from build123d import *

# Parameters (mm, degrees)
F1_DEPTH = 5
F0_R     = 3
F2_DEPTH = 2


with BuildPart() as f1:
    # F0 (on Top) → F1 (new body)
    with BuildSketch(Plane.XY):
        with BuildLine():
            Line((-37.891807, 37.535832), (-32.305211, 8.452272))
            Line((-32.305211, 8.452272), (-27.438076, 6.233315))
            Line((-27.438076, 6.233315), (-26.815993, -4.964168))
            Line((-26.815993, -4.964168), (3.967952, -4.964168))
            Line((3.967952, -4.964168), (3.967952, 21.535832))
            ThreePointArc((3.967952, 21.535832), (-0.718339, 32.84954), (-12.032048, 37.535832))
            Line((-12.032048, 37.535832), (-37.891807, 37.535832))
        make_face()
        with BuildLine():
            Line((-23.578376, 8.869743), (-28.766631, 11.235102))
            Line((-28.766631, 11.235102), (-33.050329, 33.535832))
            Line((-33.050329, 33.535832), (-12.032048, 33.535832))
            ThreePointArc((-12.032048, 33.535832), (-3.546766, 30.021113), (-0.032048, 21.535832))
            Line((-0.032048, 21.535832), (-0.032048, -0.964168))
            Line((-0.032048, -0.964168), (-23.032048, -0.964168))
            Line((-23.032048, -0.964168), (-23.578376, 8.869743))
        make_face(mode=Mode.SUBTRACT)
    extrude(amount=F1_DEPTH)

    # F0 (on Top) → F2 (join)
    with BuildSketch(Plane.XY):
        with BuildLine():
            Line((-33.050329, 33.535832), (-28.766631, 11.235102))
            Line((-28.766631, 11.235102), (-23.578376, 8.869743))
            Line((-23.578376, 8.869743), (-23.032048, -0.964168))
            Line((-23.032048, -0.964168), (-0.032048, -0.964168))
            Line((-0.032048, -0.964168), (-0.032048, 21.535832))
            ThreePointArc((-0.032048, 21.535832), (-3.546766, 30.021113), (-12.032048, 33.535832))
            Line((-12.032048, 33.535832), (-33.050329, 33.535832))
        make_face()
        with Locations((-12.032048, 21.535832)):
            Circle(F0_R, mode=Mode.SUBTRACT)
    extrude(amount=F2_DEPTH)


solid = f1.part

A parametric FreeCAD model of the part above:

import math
import FreeCAD as App
import Part
import Sketcher
from FreeCAD import Vector

doc = App.newDocument("Part")
body = doc.addObject("PartDesign::Body", "Body")

# Sketch on XY plane
sketch1 = body.newObject("Sketcher::SketchObject", "Sketch")
sketch1.AttachmentSupport = (doc.getObject("XY_Plane"), [""])
sketch1.MapMode = "FlatFace"
sketch1.addGeometry([
    Part.LineSegment(Vector(-37.891807, 37.535832, 0), Vector(-32.305211, 8.452272, 0)),  # 0
    Part.LineSegment(Vector(-32.305211, 8.452272, 0), Vector(-27.438076, 6.233315, 0)),  # 1
    Part.LineSegment(Vector(-27.438076, 6.233315, 0), Vector(-26.815993, -4.964168, 0)),  # 2
    Part.LineSegment(Vector(-26.815993, -4.964168, 0), Vector(3.967952, -4.964168, 0)),  # 3
    Part.LineSegment(Vector(3.967952, -4.964168, 0), Vector(3.967952, 21.535832, 0)),  # 4
    Part.ArcOfCircle(Part.Circle(Vector(-12.032048, 21.535832, 0), Vector(0, 0, 1), 16), math.radians(0), math.radians(90)),  # 5
    Part.LineSegment(Vector(-12.032048, 37.535832, 0), Vector(-37.891807, 37.535832, 0)),  # 6
    Part.LineSegment(Vector(-23.032048, -0.964168, 0), Vector(-23.578376, 8.869743, 0)),  # 7
    Part.LineSegment(Vector(-23.578376, 8.869743, 0), Vector(-28.766631, 11.235102, 0)),  # 8
    Part.LineSegment(Vector(-28.766631, 11.235102, 0), Vector(-33.050329, 33.535832, 0)),  # 9
    Part.LineSegment(Vector(-33.050329, 33.535832, 0), Vector(-12.032048, 33.535832, 0)),  # 10
    Part.ArcOfCircle(Part.Circle(Vector(-12.032048, 21.535832, 0), Vector(0, 0, 1), 12), math.radians(-0.000002), math.radians(90.000002)),  # 11
    Part.LineSegment(Vector(-0.032048, 21.535832, 0), Vector(-0.032048, -0.964168, 0)),  # 12
    Part.LineSegment(Vector(-0.032048, -0.964168, 0), Vector(-23.032048, -0.964168, 0)),  # 13
], False)
sketch1.addConstraint([
    Sketcher.Constraint("Coincident", 0, 2, 1, 1),
    Sketcher.Constraint("Coincident", 1, 2, 2, 1),
    Sketcher.Constraint("Coincident", 2, 2, 3, 1),
    Sketcher.Constraint("Coincident", 3, 2, 4, 1),
    Sketcher.Constraint("Coincident", 4, 2, 5, 1),
    Sketcher.Constraint("Coincident", 5, 2, 6, 1),
    Sketcher.Constraint("Coincident", 6, 2, 0, 1),
    Sketcher.Constraint("Coincident", 7, 2, 8, 1),
    Sketcher.Constraint("Coincident", 8, 2, 9, 1),
    Sketcher.Constraint("Coincident", 9, 2, 10, 1),
    Sketcher.Constraint("Coincident", 10, 2, 11, 2),
    Sketcher.Constraint("Coincident", 11, 1, 12, 1),
    Sketcher.Constraint("Coincident", 12, 2, 13, 1),
    Sketcher.Constraint("Coincident", 13, 2, 7, 1),
    Sketcher.Constraint("Horizontal", 3),
    Sketcher.Constraint("Vertical", 4),
    Sketcher.Constraint("Horizontal", 6),
    Sketcher.Constraint("Horizontal", 10),
    Sketcher.Constraint("Vertical", 12),
    Sketcher.Constraint("Horizontal", 13),
    Sketcher.Constraint("Coincident", 11, 3, 5, 3),
    Sketcher.Constraint("Radius", 5, 16.0),
    Sketcher.Constraint("Radius", 11, 12.0),
    Sketcher.Constraint("DistanceX", 13, 2, 13, 1, 23.0),
    Sketcher.Constraint("DistanceY", 4, 1, 4, 2, 26.5),
    Sketcher.Constraint("DistanceY", 12, 2, 12, 1, 22.5),
    Sketcher.Constraint("DistanceX", 5, 2, 4, 2, 16.0),
    Sketcher.Constraint("DistanceY", 4, 2, 5, 2, 16.0),
    Sketcher.Constraint("DistanceX", 10, 2, 4, 2, 16.0),
    Sketcher.Constraint("DistanceY", 11, 1, 10, 2, 12.0),
    Sketcher.Constraint("DistanceX", 6, 2, 6, 1, 25.859759),
    Sketcher.Constraint("DistanceX", 10, 1, 10, 2, 21.018281),
    Sketcher.Constraint("DistanceX", 1, 2, 7, 2, 3.8597),
    Sketcher.Constraint("Distance", 0, 29.615258),
    Sketcher.Constraint("Distance", 1, 5.349091),
    Sketcher.Constraint("Distance", 2, 11.21475),
    Sketcher.Constraint("Distance", 8, 5.70201),
    Sketcher.Constraint("DistanceX", 3, 1, 3, 2, 30.783945),
    Sketcher.Constraint("DistanceX", 0, 2, -1, 1, 32.305211),
    Sketcher.Constraint("DistanceX", -1, 1, 3, 2, 3.967952),
    Sketcher.Constraint("DistanceY", -1, 1, 4, 2, 21.535832),
    Sketcher.Constraint("DistanceX", 8, 2, -1, 1, 28.766631),
    Sketcher.Constraint("DistanceY", 0, 2, 7, 2, 0.417471),
])
pad1 = body.newObject("PartDesign::Pad", "Pad")
pad1.Profile = sketch1
pad1.Length = 5

# Sketch on XY plane
sketch2 = body.newObject("Sketcher::SketchObject", "Sketch001")
sketch2.AttachmentSupport = (doc.getObject("XY_Plane"), [""])
sketch2.MapMode = "FlatFace"
sketch2.addGeometry([
    Part.LineSegment(Vector(-33.1, 33.5, 0), Vector(-28.8, 11.2, 0)),  # 0
    Part.LineSegment(Vector(-28.8, 11.2, 0), Vector(-23.6, 8.9, 0)),  # 1
    Part.LineSegment(Vector(-23.6, 8.9, 0), Vector(-23, -1, 0)),  # 2
    Part.LineSegment(Vector(-23, -1, 0), Vector(0, -1, 0)),  # 3
    Part.LineSegment(Vector(0, -1, 0), Vector(0, 21.5, 0)),  # 4
    Part.ArcOfCircle(Part.Circle(Vector(-12, 21.5, 0), Vector(0, 0, 1), 12), math.radians(0), math.radians(90)),  # 5
    Part.LineSegment(Vector(-12, 33.5, 0), Vector(-33.1, 33.5, 0)),  # 6
    Part.Circle(Vector(-12, 21.5, 0), Vector(0, 0, 1), 3),  # 7
], False)
sketch2.addConstraint([
    Sketcher.Constraint("Coincident", 0, 2, 1, 1),
    Sketcher.Constraint("Coincident", 1, 2, 2, 1),
    Sketcher.Constraint("Coincident", 2, 2, 3, 1),
    Sketcher.Constraint("Coincident", 3, 2, 4, 1),
    Sketcher.Constraint("Tangent", 4, 2, 5, 1),
    Sketcher.Constraint("Tangent", 5, 2, 6, 1),
    Sketcher.Constraint("Coincident", 6, 2, 0, 1),
    Sketcher.Constraint("Horizontal", 3),
    Sketcher.Constraint("Vertical", 4),
    Sketcher.Constraint("Horizontal", 6),
    Sketcher.Constraint("Coincident", 7, 3, 5, 3),
    Sketcher.Constraint("Diameter", 7, 6.0),
    Sketcher.Constraint("Radius", 5, 12.0),
    Sketcher.Constraint("DistanceX", 3, 1, 3, 2, 23.0),
    Sketcher.Constraint("DistanceY", 4, 1, 4, 2, 22.5),
    Sketcher.Constraint("DistanceX", 6, 2, 6, 1, 21.018281),
    Sketcher.Constraint("Distance", 1, 5.70201),
    Sketcher.Constraint("DistanceY", -1, 1, 7, 3, 21.535832),
    Sketcher.Constraint("DistanceX", 0, 2, -1, 1, 28.766631),
    Sketcher.Constraint("DistanceX", 6, 2, -1, 1, 33.050329),
    Sketcher.Constraint("DistanceY", 0, 2, 7, 3, 10.30073),
    Sketcher.Constraint("DistanceY", 1, 2, 0, 2, 2.365359),
])
pad2 = body.newObject("PartDesign::Pad", "Pad001")
pad2.Profile = sketch2
pad2.Length = 2

doc.recompute()
